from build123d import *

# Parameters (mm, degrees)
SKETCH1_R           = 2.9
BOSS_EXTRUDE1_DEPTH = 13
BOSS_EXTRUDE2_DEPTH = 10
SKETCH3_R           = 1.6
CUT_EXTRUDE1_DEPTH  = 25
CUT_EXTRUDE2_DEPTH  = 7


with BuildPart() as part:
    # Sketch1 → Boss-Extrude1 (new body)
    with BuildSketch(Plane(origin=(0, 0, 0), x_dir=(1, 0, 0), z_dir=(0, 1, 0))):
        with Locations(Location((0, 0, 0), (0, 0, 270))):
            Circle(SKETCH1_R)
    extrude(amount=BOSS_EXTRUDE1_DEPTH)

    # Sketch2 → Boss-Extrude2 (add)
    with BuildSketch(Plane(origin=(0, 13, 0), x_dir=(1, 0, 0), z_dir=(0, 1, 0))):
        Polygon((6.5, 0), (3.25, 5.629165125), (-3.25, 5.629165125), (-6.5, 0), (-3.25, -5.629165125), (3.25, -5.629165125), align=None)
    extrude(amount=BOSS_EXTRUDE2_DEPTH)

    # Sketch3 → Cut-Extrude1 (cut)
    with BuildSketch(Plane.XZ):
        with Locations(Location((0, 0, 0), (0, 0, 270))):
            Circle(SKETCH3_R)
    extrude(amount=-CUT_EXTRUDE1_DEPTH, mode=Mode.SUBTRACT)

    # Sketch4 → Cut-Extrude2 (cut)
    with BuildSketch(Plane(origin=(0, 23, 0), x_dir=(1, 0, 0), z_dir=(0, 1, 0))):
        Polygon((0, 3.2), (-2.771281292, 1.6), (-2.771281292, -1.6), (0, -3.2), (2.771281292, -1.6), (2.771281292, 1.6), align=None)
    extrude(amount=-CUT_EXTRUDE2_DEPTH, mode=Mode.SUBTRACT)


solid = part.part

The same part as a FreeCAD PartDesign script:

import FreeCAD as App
import Part
import Sketcher
Q = App.Units.Quantity


def add_polygon(sketch, points):
    """Adds a closed chain of lines whose ends are joined by coincident constraints."""
    first, n = sketch.GeometryCount, len(points)
    for a, b in zip(points, points[1:] + points[:1]):
        sketch.addGeometry(Part.LineSegment(App.Vector(*a, 0), App.Vector(*b, 0)), False)
    for i in range(n):
        sketch.addConstraint(Sketcher.Constraint("Coincident", first + i, 2, first + (i + 1) % n, 1))

doc = App.newDocument("Part")
body = doc.addObject("PartDesign::Body", "Body")

# Sketch on XZ plane
sketch1 = body.newObject("Sketcher::SketchObject", "Sketch")
sketch1.AttachmentSupport = (doc.getObject("XZ_Plane"), [""])
sketch1.MapMode = "FlatFace"
sketch1.addGeometry(Part.Circle(App.Vector(0, 0, 0), App.Vector(0, 0, 1), 2.9), False)
sketch1.addConstraint(Sketcher.Constraint("Coincident", 0, 3, -1, 1))
sketch1.addConstraint(Sketcher.Constraint("Diameter", 0, 5.8))
pad1 = body.newObject("PartDesign::Pad", "Pad")
pad1.Profile = sketch1
pad1.Length = 13
pad1.Reversed = True

# Sketch on XZ plane
sketch2 = body.newObject("Sketcher::SketchObject", "Sketch001")
sketch2.AttachmentSupport = (doc.getObject("XZ_Plane"), [""])
sketch2.MapMode = "FlatFace"
sketch2.AttachmentOffset = App.Placement(App.Vector(0, 0, -13), App.Rotation())
add_polygon(sketch2, [(6.5, 0), (3.25, -5.629165), (-3.25, -5.629165), (-6.5, 0), (-3.25, 5.629165), (3.25, 5.629165)])  # lines 0-5
sketch2.addConstraint(Sketcher.Constraint("Horizontal", 1))
sketch2.addConstraint(Sketcher.Constraint("Horizontal", 4))
sketch2.addConstraint(Sketcher.Constraint("Symmetric", 0, 2, 3, 2, -1, 1))
sketch2.addConstraint(Sketcher.Constraint("Symmetric", 2, 2, 5, 2, -1, 1))
sketch2.addConstraint(Sketcher.Constraint("PointOnObject", 2, 2, -1))
sketch2.addConstraint(Sketcher.Constraint("Parallel", 2, 5))
sketch2.addConstraint(Sketcher.Constraint("Vertical", 1, 2, 3, 2))
sketch2.addConstraint(Sketcher.Constraint("Angle", 0, Q("-120 deg")))
sketch2.addConstraint(Sketcher.Constraint("DistanceX", 1, 2, 1, 1, 6.5))
sketch2.addConstraint(Sketcher.Constraint("DistanceX", 2, 2, 5, 2, 13.0))
pad2 = body.newObject("PartDesign::Pad", "Pad001")
pad2.Profile = sketch2
pad2.Length = 10
pad2.Reversed = True

# Sketch on XZ plane
sketch3 = body.newObject("Sketcher::SketchObject", "Sketch002")
sketch3.AttachmentSupport = (doc.getObject("XZ_Plane"), [""])
sketch3.MapMode = "FlatFace"
sketch3.addGeometry(Part.Circle(App.Vector(0, 0, 0), App.Vector(0, 0, 1), 1.6), False)
sketch3.addConstraint(Sketcher.Constraint("Coincident", 0, 3, -1, 1))
sketch3.addConstraint(Sketcher.Constraint("Diameter", 0, 3.2))
pocket1 = body.newObject("PartDesign::Pocket", "Pocket")
pocket1.Profile = sketch3
pocket1.Length = 25

# Sketch on XZ plane
sketch4 = body.newObject("Sketcher::SketchObject", "Sketch003")
sketch4.AttachmentSupport = (doc.getObject("XZ_Plane"), [""])
sketch4.MapMode = "FlatFace"
sketch4.AttachmentOffset = App.Placement(App.Vector(0, 0, -23), App.Rotation())
add_polygon(sketch4, [(0, -3.2), (-2.771281, -1.6), (-2.771281, 1.6), (0, 3.2), (2.771281, 1.6), (2.771281, -1.6)])  # lines 0-5
sketch4.addConstraint(Sketcher.Constraint("Vertical", 1))
sketch4.addConstraint(Sketcher.Constraint("Vertical", 4))
sketch4.addConstraint(Sketcher.Constraint("Symmetric", 0, 2, 3, 2, -1, 1))
sketch4.addConstraint(Sketcher.Constraint("Symmetric", 2, 2, 5, 2, -1, 1))
sketch4.addConstraint(Sketcher.Constraint("PointOnObject", 2, 2, -2))
sketch4.addConstraint(Sketcher.Constraint("Parallel", 2, 5))
sketch4.addConstraint(Sketcher.Constraint("Horizontal", 1, 2, 3, 2))
sketch4.addConstraint(Sketcher.Constraint("Angle", 0, Q("150 deg")))
sketch4.addConstraint(Sketcher.Constraint("DistanceY", 1, 1, 1, 2, 3.2))
sketch4.addConstraint(Sketcher.Constraint("Distance", 0, 3.2))
pocket2 = body.newObject("PartDesign::Pocket", "Pocket001")
pocket2.Profile = sketch4
pocket2.Length = 7
pocket2.Reversed = True

doc.recompute()
